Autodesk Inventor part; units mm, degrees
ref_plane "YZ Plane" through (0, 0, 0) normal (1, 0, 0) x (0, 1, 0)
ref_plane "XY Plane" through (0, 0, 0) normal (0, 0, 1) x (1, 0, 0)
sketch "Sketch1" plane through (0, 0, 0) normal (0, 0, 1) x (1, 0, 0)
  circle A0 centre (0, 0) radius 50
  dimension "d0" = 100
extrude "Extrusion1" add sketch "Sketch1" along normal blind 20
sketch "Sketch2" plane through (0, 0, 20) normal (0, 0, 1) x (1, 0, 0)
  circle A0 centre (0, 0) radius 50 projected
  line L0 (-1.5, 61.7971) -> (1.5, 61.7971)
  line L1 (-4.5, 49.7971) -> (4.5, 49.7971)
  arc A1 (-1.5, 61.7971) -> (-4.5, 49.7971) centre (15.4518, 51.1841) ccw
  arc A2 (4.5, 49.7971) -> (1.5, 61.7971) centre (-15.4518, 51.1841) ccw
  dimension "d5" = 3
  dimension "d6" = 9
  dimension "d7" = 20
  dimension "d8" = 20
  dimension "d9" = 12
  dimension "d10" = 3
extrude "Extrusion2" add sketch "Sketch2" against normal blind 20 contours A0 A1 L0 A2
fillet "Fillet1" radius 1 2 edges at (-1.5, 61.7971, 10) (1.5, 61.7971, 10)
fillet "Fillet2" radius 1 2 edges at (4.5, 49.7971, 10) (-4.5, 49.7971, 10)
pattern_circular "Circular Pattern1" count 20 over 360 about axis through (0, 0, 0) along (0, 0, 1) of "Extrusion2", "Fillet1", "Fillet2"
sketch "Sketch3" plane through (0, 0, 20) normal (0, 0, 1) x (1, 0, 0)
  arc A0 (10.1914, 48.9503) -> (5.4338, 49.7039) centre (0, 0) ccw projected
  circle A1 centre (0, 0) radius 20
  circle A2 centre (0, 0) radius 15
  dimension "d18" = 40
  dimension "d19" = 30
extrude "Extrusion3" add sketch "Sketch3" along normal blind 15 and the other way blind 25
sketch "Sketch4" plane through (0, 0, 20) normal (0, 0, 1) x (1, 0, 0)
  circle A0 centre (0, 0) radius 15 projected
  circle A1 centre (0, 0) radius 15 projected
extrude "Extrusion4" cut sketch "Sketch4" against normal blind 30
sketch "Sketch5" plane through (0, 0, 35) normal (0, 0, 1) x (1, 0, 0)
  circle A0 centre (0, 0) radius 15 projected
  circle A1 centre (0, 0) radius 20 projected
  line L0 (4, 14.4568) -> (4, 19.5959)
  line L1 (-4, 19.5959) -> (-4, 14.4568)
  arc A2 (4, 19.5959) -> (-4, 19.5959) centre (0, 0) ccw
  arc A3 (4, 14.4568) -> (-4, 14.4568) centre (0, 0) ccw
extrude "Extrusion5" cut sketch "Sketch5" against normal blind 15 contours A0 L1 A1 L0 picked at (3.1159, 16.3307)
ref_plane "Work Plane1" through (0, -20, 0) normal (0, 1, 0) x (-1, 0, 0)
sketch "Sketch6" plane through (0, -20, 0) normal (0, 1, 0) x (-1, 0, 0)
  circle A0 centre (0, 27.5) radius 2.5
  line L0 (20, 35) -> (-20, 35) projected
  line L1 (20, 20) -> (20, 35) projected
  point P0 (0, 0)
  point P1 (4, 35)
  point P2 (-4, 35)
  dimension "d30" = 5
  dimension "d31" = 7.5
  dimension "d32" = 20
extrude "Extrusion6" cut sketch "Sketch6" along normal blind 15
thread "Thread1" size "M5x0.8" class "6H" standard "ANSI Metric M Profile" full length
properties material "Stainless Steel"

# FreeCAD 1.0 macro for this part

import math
import FreeCAD as App
import Part
import Sketcher

V = App.Vector
Q = App.Units.Quantity


def edges_at(feature, points):
    """Names of the edges that pass closest to the given points."""
    edges = feature.Shape.Edges
    near = lambda p: min(range(len(edges)), key=lambda i: edges[i].distToShape(Part.Vertex(*p))[0])
    return sorted({f"Edge{near(p) + 1}" for p in points})

doc = App.newDocument("Part")
body = doc.addObject("PartDesign::Body", "Body")

sketch1 = doc.addObject("Sketcher::SketchObject", "Sketch")
body.addObject(sketch1)
sketch1.AttachmentSupport = (doc.XY_Plane, [""])
sketch1.MapMode = "FlatFace"
sketch1.addGeometry(Part.Circle(V(0, 0, 0), V(0, 0, 1), 50), False)
sketch1.addConstraint([
    Sketcher.Constraint("Coincident", 0, 3, -1, 1),
    Sketcher.Constraint("Diameter", 0, Q("100 mm")),
])
pad1 = doc.addObject("PartDesign::Pad", "Pad")
body.addObject(pad1)
pad1.Profile = sketch1
pad1.Length = 20

sketch2 = doc.addObject("Sketcher::SketchObject", "Sketch001")
body.addObject(sketch2)
sketch2.AttachmentSupport = (doc.XY_Plane, [""])
sketch2.MapMode = "FlatFace"
sketch2.AttachmentOffset = App.Placement(V(0, 0, 20), App.Rotation())
sketch2.addGeometry([
    Part.ArcOfCircle(Part.Circle(V(0, 0, 0), V(0, 0, 1), 50), math.radians(84.84), math.radians(95.16)),
    Part.ArcOfCircle(Part.Circle(V(-15.5, 51.2, 0), V(0, 0, 1), 20), math.radians(-4), math.radians(32)),
    Part.LineSegment(V(1.5, 61.8, 0), V(-1.5, 61.8, 0)),
    Part.ArcOfCircle(Part.Circle(V(15.5, 51.2, 0), V(0, 0, 1), 20), math.radians(148), math.radians(184)),
], False)
sketch2.addConstraint([
    Sketcher.Constraint("Coincident", 0, 1, 1, 1),
    Sketcher.Constraint("Coincident", 1, 2, 2, 1),
    Sketcher.Constraint("Coincident", 2, 2, 3, 1),
    Sketcher.Constraint("Coincident", 3, 2, 0, 2),
    Sketcher.Constraint("Horizontal", 2),
    Sketcher.Constraint("Coincident", 0, 3, -1, 1),
    Sketcher.Constraint("Equal", 1, 3),
    Sketcher.Constraint("Symmetric", 1, 3, 3, 3, -2),
    Sketcher.Constraint("Radius", 1, Q("20 mm")),
    Sketcher.Constraint("DistanceX", 2, 2, 2, 1, Q("3 mm")),
    Sketcher.Constraint("Radius", 0, Q("50 mm")),
    Sketcher.Constraint("DistanceX", 1, 2, 0, 1, Q("3 mm")),
    Sketcher.Constraint("DistanceY", 0, 1, 1, 2, Q("12 mm")),
])
pad2 = doc.addObject("PartDesign::Pad", "Pad001")
body.addObject(pad2)
pad2.Profile = sketch2
pad2.Length = 20
pad2.Reversed = True
doc.recompute()

fillet = doc.addObject("PartDesign::Fillet", "Fillet")
body.addObject(fillet)
fillet.Base = (pad2, edges_at(pad2, [(-1.5, 61.797, 10), (1.5, 61.797, 10)]))
fillet.Radius = 1
doc.recompute()

fillet2 = doc.addObject("PartDesign::Fillet", "Fillet001")
body.addObject(fillet2)
fillet2.Base = (fillet, edges_at(fillet, [(4.5, 49.797, 10), (-4.5, 49.797, 10)]))
fillet2.Radius = 1
doc.recompute()

polarpattern = doc.addObject("PartDesign::PolarPattern", "PolarPattern")
body.addObject(polarpattern)
polarpattern.Originals = [pad2, fillet, fillet2]
polarpattern.Axis = (doc.Z_Axis, [""])
polarpattern.Angle = 360
polarpattern.Occurrences = 20
body.Tip = polarpattern

sketch3 = doc.addObject("Sketcher::SketchObject", "Sketch002")
body.addObject(sketch3)
sketch3.AttachmentSupport = (doc.XY_Plane, [""])
sketch3.MapMode = "FlatFace"
sketch3.AttachmentOffset = App.Placement(V(0, 0, 20), App.Rotation())
sketch3.addGeometry([
    Part.Circle(V(0, 0, 0), V(0, 0, 1), 20),
    Part.Circle(V(0, 0, 0), V(0, 0, 1), 15),
], False)
sketch3.addConstraint([
    Sketcher.Constraint("Coincident", 0, 3, -1, 1),
    Sketcher.Constraint("Coincident", 1, 3, -1, 1),
    Sketcher.Constraint("Diameter", 0, Q("40 mm")),
    Sketcher.Constraint("Diameter", 1, Q("30 mm")),
])
pad3 = doc.addObject("PartDesign::Pad", "Pad002")
body.addObject(pad3)
pad3.Profile = sketch3
pad3.Type = "TwoLengths"
pad3.Length = 15
pad3.Length2 = 25

sketch4 = doc.addObject("Sketcher::SketchObject", "Sketch003")
body.addObject(sketch4)
sketch4.AttachmentSupport = (doc.XY_Plane, [""])
sketch4.MapMode = "FlatFace"
sketch4.AttachmentOffset = App.Placement(V(0, 0, 20), App.Rotation())
sketch4.addGeometry(Part.Circle(V(0, 0, 0), V(0, 0, 1), 15), False)
sketch4.addConstraint([
    Sketcher.Constraint("Coincident", 0, 3, -1, 1),
    Sketcher.Constraint("Diameter", 0, Q("30 mm")),
])
pocket1 = doc.addObject("PartDesign::Pocket", "Pocket")
body.addObject(pocket1)
pocket1.Profile = sketch4
pocket1.Length = 30

sketch5 = doc.addObject("Sketcher::SketchObject", "Sketch004")
body.addObject(sketch5)
sketch5.AttachmentSupport = (doc.XY_Plane, [""])
sketch5.MapMode = "FlatFace"
sketch5.AttachmentOffset = App.Placement(V(0, 0, 35), App.Rotation())
sketch5.addGeometry([
    Part.ArcOfCircle(Part.Circle(V(0, 0, 0), V(0, 0, 1), 15), math.radians(75), math.radians(105)),
    Part.LineSegment(V(4, 14, 0), V(4, 20, 0)),
    Part.ArcOfCircle(Part.Circle(V(0, 0, 0), V(0, 0, 1), 20), math.radians(78), math.radians(102)),
    Part.LineSegment(V(-4, 20, 0), V(-4, 14, 0)),
], False)
sketch5.addConstraint([
    Sketcher.Constraint("Coincident", 0, 1, 1, 1),
    Sketcher.Constraint("Coincident", 1, 2, 2, 1),
    Sketcher.Constraint("Coincident", 2, 2, 3, 1),
    Sketcher.Constraint("Coincident", 3, 2, 0, 2),
    Sketcher.Constraint("Vertical", 1),
    Sketcher.Constraint("Vertical", 3),
    Sketcher.Constraint("Coincident", 0, 3, -1, 1),
    Sketcher.Constraint("Coincident", 2, 3, -1, 1),
    Sketcher.Constraint("Horizontal", 1, 2, 2, 2),
    Sketcher.Constraint("Radius", 0, Q("15 mm")),
    Sketcher.Constraint("Radius", 2, Q("20 mm")),
    Sketcher.Constraint("DistanceX", -1, 1, 0, 1, Q("4 mm")),
])
pocket2 = doc.addObject("PartDesign::Pocket", "Pocket001")
body.addObject(pocket2)
pocket2.Profile = sketch5
pocket2.Length = 15

sketch6 = doc.addObject("Sketcher::SketchObject", "Sketch005")
body.addObject(sketch6)
sketch6.AttachmentSupport = (doc.XZ_Plane, [""])
sketch6.MapMode = "FlatFace"
sketch6.AttachmentOffset = App.Placement(V(0, 0, 20), App.Rotation())
sketch6.addGeometry(Part.Circle(V(0, 27.5, 0), V(0, 0, 1), 2.5), False)
sketch6.addConstraint([
    Sketcher.Constraint("PointOnObject", 0, 3, -2),
    Sketcher.Constraint("Diameter", 0, Q("5 mm")),
    Sketcher.Constraint("DistanceY", -1, 1, 0, 3, Q("27.5 mm")),
])
pocket3 = doc.addObject("PartDesign::Pocket", "Pocket002")
body.addObject(pocket3)
pocket3.Profile = sketch6
pocket3.Length = 15

doc.recompute()
